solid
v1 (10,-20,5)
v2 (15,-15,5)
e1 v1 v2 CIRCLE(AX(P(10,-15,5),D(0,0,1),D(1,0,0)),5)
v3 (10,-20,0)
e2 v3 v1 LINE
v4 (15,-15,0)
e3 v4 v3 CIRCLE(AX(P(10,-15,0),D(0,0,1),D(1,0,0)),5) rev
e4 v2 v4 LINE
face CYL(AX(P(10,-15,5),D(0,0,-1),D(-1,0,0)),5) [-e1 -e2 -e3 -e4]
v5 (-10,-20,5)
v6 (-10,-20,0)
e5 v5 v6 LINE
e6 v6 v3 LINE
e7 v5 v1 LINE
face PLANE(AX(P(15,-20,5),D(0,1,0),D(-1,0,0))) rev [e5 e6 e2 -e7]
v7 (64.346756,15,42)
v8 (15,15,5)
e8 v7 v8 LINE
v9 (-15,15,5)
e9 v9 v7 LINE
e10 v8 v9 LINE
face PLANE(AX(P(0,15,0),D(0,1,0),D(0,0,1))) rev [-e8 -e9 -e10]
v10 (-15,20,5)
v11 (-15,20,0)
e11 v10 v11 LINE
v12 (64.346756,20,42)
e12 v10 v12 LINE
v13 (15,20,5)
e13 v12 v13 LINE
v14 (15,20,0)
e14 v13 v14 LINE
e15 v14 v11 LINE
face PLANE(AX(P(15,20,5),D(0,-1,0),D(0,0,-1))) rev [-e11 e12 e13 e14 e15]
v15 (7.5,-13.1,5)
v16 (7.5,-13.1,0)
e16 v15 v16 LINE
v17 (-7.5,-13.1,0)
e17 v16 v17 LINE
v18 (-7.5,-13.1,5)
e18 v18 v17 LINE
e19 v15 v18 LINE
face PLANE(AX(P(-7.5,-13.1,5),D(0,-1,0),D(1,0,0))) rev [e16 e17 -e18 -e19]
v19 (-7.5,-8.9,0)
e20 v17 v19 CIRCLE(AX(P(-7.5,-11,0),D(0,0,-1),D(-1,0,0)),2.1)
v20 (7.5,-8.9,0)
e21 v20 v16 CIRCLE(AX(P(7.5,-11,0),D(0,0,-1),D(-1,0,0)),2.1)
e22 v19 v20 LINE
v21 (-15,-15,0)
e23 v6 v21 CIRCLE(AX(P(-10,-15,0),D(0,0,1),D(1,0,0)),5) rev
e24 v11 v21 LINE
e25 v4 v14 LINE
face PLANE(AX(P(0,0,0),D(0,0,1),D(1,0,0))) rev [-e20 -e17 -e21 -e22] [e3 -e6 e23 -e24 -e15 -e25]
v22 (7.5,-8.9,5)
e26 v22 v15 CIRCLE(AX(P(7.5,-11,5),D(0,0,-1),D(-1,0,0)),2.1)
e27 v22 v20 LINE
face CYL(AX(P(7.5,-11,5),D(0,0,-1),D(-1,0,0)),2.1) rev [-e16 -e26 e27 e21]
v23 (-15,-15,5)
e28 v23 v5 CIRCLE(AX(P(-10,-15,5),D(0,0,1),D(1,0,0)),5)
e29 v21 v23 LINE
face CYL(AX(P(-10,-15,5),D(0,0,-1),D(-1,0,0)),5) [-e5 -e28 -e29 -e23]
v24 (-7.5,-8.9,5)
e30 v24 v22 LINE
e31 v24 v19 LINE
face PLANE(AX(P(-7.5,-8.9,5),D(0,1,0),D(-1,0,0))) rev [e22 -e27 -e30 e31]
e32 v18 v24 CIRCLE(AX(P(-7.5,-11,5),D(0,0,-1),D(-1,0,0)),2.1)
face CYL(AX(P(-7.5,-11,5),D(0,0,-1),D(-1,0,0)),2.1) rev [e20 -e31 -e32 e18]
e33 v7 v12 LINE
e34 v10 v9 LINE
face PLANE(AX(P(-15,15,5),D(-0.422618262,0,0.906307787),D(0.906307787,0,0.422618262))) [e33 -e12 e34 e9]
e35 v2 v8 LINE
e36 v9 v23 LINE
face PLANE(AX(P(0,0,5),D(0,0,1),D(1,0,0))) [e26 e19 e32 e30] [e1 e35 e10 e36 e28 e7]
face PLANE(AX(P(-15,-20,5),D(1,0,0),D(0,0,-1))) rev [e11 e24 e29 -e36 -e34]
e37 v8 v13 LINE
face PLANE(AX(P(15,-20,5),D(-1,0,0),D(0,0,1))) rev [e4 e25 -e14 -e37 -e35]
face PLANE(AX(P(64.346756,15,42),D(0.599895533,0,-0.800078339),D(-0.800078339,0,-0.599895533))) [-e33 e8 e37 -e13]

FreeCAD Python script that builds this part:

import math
import FreeCAD as App
import Part
import Sketcher

V = App.Vector
Q = App.Units.Quantity


def edges_at(feature, points):
    """Names of the edges that pass closest to the given points."""
    edges = feature.Shape.Edges
    near = lambda p: min(range(len(edges)), key=lambda i: edges[i].distToShape(Part.Vertex(*p))[0])
    return sorted({f"Edge{near(p) + 1}" for p in points})

doc = App.newDocument("Part")
body = doc.addObject("PartDesign::Body", "Body")

sketch1 = body.newObject("Sketcher::SketchObject", "Sketch")
sketch1.AttachmentSupport = (doc.getObject("XY_Plane"), [""])
sketch1.MapMode = "FlatFace"
sketch1.addGeometry([
    Part.LineSegment(V(-15, 20, 0), V(-15, -20, 0)),
    Part.LineSegment(V(-15, -20, 0), V(15, -20, 0)),
    Part.LineSegment(V(15, -20, 0), V(15, 20, 0)),
    Part.LineSegment(V(15, 20, 0), V(-15, 20, 0)),
], False)
sketch1.addConstraint([
    Sketcher.Constraint("Coincident", 0, 2, 1, 1),
    Sketcher.Constraint("Coincident", 1, 2, 2, 1),
    Sketcher.Constraint("Coincident", 2, 2, 3, 1),
    Sketcher.Constraint("Coincident", 3, 2, 0, 1),
    Sketcher.Constraint("Vertical", 0),
    Sketcher.Constraint("Horizontal", 1),
    Sketcher.Constraint("Vertical", 2),
    Sketcher.Constraint("Horizontal", 3),
    Sketcher.Constraint("Symmetric", 0, 2, 2, 2, -1, 1),
    Sketcher.Constraint("DistanceX", 1, 1, 1, 2, Q("30 mm")),
    Sketcher.Constraint("DistanceY", 0, 2, 0, 1, Q("40 mm")),
])
pad1 = body.newObject("PartDesign::Pad", "Pad")
pad1.Profile = sketch1
pad1.Length = 5

sketch2 = body.newObject("Sketcher::SketchObject", "Sketch001")
sketch2.AttachmentSupport = (doc.getObject("XZ_Plane"), [""])
sketch2.MapMode = "FlatFace"
sketch2.AttachmentOffset = App.Placement(V(0, 0, -20), App.Rotation())
sketch2.addGeometry([
    Part.LineSegment(V(-15, 5, 0), V(64, 42, 0)),
    Part.LineSegment(V(64, 42, 0), V(15, 5, 0)),
    Part.LineSegment(V(15, 5, 0), V(-15, 5, 0)),
], False)
sketch2.addConstraint([
    Sketcher.Constraint("Coincident", 0, 2, 1, 1),
    Sketcher.Constraint("Coincident", 1, 2, 2, 1),
    Sketcher.Constraint("Coincident", 2, 2, 0, 1),
    Sketcher.Constraint("Horizontal", 2),
    Sketcher.Constraint("DistanceX", 2, 2, 2, 1, Q("30 mm")),
    Sketcher.Constraint("Angle", 0, Q("25 deg")),
    Sketcher.Constraint("DistanceY", -1, 1, 0, 2, Q("42 mm")),
    Sketcher.Constraint("DistanceX", -1, 1, 1, 2, Q("15 mm")),
    Sketcher.Constraint("DistanceY", -1, 1, 1, 2, Q("5 mm")),
])
pad2 = body.newObject("PartDesign::Pad", "Pad001")
pad2.Profile = sketch2
pad2.Length = 5
doc.recompute()

fillet = body.newObject("PartDesign::Fillet", "Fillet")
fillet.Base = (pad2, edges_at(pad2, [(15, -20, 2.5), (-15, -20, 2.5)]))
fillet.Radius = 5

sketch3 = body.newObject("Sketcher::SketchObject", "Sketch002")
sketch3.AttachmentSupport = (doc.getObject("XY_Plane"), [""])
sketch3.MapMode = "FlatFace"
sketch3.addGeometry([
    Part.LineSegment(V(7.5, -13.1, 0), V(-7.5, -13.1, 0)),
    Part.ArcOfCircle(Part.Circle(V(-7.5, -11, 0), V(0, 0, 1), 2.1), math.radians(90), math.radians(270)),
    Part.LineSegment(V(-7.5, -8.9, 0), V(7.5, -8.9, 0)),
    Part.ArcOfCircle(Part.Circle(V(7.5, -11, 0), V(0, 0, 1), 2.1), math.radians(-90), math.radians(90)),
], False)
sketch3.addConstraint([
    Sketcher.Constraint("Tangent", 0, 2, 1, 2),
    Sketcher.Constraint("Tangent", 1, 1, 2, 1),
    Sketcher.Constraint("Tangent", 2, 2, 3, 2),
    Sketcher.Constraint("Tangent", 3, 1, 0, 1),
    Sketcher.Constraint("Horizontal", 0),
    Sketcher.Constraint("Horizontal", 2),
    Sketcher.Constraint("Radius", 1, Q("2.1 mm")),
    Sketcher.Constraint("DistanceX", 0, 2, 0, 1, Q("15 mm")),
    Sketcher.Constraint("DistanceY", 1, 3, -1, 1, Q("11 mm")),
    Sketcher.Constraint("DistanceX", 1, 3, -1, 1, Q("7.5 mm")),
])
pocket1 = body.newObject("PartDesign::Pocket", "Pocket")
pocket1.Profile = sketch3
pocket1.Length = 5
pocket1.Reversed = True

doc.recompute()
